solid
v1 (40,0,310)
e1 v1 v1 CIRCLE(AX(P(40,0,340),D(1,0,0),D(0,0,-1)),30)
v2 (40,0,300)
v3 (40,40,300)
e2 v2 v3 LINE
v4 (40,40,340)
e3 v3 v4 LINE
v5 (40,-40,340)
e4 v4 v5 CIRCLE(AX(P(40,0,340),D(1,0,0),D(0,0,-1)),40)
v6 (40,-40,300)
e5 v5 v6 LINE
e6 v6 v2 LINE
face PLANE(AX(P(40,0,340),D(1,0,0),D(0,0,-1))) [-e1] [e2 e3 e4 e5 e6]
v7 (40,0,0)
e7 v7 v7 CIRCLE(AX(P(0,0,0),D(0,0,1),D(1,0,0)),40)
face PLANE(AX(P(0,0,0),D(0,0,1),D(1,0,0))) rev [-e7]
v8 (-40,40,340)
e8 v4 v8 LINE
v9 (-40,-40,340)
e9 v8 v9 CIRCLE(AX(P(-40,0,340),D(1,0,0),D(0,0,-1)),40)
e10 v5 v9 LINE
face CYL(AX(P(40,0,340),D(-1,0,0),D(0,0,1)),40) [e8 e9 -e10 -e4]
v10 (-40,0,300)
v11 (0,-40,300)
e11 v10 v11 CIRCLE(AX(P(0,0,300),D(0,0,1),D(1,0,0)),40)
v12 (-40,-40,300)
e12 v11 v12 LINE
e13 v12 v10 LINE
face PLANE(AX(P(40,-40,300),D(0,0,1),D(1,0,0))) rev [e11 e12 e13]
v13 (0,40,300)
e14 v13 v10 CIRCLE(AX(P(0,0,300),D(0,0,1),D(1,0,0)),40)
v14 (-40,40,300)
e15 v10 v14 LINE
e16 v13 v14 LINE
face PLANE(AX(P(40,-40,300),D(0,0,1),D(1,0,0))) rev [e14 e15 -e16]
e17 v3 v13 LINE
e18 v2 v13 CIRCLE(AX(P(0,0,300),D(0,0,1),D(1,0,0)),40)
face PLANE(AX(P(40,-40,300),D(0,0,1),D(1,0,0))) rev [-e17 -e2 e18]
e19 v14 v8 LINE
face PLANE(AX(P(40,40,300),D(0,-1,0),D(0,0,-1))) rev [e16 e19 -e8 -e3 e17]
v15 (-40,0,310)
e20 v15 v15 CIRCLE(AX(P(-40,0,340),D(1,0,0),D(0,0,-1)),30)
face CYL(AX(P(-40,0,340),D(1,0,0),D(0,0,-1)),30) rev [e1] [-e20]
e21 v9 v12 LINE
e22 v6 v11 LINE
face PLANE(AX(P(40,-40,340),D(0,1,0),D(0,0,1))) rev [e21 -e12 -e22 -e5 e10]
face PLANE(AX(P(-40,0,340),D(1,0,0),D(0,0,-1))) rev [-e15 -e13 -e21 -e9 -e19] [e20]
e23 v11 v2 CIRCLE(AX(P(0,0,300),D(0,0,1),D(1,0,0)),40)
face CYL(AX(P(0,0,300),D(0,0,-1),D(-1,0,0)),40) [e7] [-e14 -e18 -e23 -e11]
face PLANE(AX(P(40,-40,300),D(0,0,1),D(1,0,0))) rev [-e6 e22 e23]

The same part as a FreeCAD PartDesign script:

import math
import FreeCAD as App
import Part
import Sketcher
from FreeCAD import Vector

doc = App.newDocument("Part")
body = doc.addObject("PartDesign::Body", "Body")

sketch1 = body.newObject("Sketcher::SketchObject", "Sketch")
sketch1.AttachmentSupport = (doc.getObject("XY_Plane"), [""])
sketch1.MapMode = "FlatFace"
sketch1.addGeometry(Part.Circle(Vector(0, 0, 0), Vector(0, 0, 1), 40), False)
sketch1.addConstraint([
    Sketcher.Constraint("Coincident", 0, 3, -1, 1),
    Sketcher.Constraint("Diameter", 0, 80.0),
])
pad1 = body.newObject("PartDesign::Pad", "Pad")
pad1.Profile = sketch1
pad1.Length = 300

sketch2 = body.newObject("Sketcher::SketchObject", "Sketch001")
sketch2.AttachmentSupport = (doc.getObject("YZ_Plane"), [""])
sketch2.MapMode = "FlatFace"
sketch2.addGeometry([
    Part.LineSegment(Vector(-40, 340, 0), Vector(-40, 300, 0)),
    Part.LineSegment(Vector(-40, 300, 0), Vector(40, 300, 0)),
    Part.LineSegment(Vector(40, 300, 0), Vector(40, 340, 0)),
    Part.ArcOfCircle(Part.Circle(Vector(0, 340, 0), Vector(0, 0, 1), 40), math.radians(0), math.radians(180)),
], False)
sketch2.addConstraint([
    Sketcher.Constraint("Coincident", 0, 2, 1, 1),
    Sketcher.Constraint("Coincident", 1, 2, 2, 1),
    Sketcher.Constraint("Tangent", 2, 2, 3, 1),
    Sketcher.Constraint("Tangent", 3, 2, 0, 1),
    Sketcher.Constraint("Vertical", 0),
    Sketcher.Constraint("Horizontal", 1),
    Sketcher.Constraint("Vertical", 2),
    Sketcher.Constraint("PointOnObject", 3, 3, -2),
    Sketcher.Constraint("Radius", 3, 40.0),
    Sketcher.Constraint("DistanceY", 0, 2, 0, 1, 40.0),
    Sketcher.Constraint("DistanceY", -1, 1, 3, 3, 340.0),
])
pad2 = body.newObject("PartDesign::Pad", "Pad001")
pad2.Profile = sketch2
pad2.Length = 80
pad2.Midplane = True

sketch3 = body.newObject("Sketcher::SketchObject", "Sketch002")
sketch3.AttachmentSupport = (doc.getObject("YZ_Plane"), [""])
sketch3.MapMode = "FlatFace"
sketch3.AttachmentOffset = App.Placement(Vector(0, 0, 40), App.Rotation())
sketch3.addGeometry(Part.Circle(Vector(0, 340, 0), Vector(0, 0, 1), 30), False)
sketch3.addConstraint([
    Sketcher.Constraint("PointOnObject", 0, 3, -2),
    Sketcher.Constraint("Diameter", 0, 60.0),
    Sketcher.Constraint("DistanceY", -1, 1, 0, 3, 340.0),
])
pocket1 = body.newObject("PartDesign::Pocket", "Pocket")
pocket1.Profile = sketch3
pocket1.Type = "ThroughAll"

doc.recompute()
